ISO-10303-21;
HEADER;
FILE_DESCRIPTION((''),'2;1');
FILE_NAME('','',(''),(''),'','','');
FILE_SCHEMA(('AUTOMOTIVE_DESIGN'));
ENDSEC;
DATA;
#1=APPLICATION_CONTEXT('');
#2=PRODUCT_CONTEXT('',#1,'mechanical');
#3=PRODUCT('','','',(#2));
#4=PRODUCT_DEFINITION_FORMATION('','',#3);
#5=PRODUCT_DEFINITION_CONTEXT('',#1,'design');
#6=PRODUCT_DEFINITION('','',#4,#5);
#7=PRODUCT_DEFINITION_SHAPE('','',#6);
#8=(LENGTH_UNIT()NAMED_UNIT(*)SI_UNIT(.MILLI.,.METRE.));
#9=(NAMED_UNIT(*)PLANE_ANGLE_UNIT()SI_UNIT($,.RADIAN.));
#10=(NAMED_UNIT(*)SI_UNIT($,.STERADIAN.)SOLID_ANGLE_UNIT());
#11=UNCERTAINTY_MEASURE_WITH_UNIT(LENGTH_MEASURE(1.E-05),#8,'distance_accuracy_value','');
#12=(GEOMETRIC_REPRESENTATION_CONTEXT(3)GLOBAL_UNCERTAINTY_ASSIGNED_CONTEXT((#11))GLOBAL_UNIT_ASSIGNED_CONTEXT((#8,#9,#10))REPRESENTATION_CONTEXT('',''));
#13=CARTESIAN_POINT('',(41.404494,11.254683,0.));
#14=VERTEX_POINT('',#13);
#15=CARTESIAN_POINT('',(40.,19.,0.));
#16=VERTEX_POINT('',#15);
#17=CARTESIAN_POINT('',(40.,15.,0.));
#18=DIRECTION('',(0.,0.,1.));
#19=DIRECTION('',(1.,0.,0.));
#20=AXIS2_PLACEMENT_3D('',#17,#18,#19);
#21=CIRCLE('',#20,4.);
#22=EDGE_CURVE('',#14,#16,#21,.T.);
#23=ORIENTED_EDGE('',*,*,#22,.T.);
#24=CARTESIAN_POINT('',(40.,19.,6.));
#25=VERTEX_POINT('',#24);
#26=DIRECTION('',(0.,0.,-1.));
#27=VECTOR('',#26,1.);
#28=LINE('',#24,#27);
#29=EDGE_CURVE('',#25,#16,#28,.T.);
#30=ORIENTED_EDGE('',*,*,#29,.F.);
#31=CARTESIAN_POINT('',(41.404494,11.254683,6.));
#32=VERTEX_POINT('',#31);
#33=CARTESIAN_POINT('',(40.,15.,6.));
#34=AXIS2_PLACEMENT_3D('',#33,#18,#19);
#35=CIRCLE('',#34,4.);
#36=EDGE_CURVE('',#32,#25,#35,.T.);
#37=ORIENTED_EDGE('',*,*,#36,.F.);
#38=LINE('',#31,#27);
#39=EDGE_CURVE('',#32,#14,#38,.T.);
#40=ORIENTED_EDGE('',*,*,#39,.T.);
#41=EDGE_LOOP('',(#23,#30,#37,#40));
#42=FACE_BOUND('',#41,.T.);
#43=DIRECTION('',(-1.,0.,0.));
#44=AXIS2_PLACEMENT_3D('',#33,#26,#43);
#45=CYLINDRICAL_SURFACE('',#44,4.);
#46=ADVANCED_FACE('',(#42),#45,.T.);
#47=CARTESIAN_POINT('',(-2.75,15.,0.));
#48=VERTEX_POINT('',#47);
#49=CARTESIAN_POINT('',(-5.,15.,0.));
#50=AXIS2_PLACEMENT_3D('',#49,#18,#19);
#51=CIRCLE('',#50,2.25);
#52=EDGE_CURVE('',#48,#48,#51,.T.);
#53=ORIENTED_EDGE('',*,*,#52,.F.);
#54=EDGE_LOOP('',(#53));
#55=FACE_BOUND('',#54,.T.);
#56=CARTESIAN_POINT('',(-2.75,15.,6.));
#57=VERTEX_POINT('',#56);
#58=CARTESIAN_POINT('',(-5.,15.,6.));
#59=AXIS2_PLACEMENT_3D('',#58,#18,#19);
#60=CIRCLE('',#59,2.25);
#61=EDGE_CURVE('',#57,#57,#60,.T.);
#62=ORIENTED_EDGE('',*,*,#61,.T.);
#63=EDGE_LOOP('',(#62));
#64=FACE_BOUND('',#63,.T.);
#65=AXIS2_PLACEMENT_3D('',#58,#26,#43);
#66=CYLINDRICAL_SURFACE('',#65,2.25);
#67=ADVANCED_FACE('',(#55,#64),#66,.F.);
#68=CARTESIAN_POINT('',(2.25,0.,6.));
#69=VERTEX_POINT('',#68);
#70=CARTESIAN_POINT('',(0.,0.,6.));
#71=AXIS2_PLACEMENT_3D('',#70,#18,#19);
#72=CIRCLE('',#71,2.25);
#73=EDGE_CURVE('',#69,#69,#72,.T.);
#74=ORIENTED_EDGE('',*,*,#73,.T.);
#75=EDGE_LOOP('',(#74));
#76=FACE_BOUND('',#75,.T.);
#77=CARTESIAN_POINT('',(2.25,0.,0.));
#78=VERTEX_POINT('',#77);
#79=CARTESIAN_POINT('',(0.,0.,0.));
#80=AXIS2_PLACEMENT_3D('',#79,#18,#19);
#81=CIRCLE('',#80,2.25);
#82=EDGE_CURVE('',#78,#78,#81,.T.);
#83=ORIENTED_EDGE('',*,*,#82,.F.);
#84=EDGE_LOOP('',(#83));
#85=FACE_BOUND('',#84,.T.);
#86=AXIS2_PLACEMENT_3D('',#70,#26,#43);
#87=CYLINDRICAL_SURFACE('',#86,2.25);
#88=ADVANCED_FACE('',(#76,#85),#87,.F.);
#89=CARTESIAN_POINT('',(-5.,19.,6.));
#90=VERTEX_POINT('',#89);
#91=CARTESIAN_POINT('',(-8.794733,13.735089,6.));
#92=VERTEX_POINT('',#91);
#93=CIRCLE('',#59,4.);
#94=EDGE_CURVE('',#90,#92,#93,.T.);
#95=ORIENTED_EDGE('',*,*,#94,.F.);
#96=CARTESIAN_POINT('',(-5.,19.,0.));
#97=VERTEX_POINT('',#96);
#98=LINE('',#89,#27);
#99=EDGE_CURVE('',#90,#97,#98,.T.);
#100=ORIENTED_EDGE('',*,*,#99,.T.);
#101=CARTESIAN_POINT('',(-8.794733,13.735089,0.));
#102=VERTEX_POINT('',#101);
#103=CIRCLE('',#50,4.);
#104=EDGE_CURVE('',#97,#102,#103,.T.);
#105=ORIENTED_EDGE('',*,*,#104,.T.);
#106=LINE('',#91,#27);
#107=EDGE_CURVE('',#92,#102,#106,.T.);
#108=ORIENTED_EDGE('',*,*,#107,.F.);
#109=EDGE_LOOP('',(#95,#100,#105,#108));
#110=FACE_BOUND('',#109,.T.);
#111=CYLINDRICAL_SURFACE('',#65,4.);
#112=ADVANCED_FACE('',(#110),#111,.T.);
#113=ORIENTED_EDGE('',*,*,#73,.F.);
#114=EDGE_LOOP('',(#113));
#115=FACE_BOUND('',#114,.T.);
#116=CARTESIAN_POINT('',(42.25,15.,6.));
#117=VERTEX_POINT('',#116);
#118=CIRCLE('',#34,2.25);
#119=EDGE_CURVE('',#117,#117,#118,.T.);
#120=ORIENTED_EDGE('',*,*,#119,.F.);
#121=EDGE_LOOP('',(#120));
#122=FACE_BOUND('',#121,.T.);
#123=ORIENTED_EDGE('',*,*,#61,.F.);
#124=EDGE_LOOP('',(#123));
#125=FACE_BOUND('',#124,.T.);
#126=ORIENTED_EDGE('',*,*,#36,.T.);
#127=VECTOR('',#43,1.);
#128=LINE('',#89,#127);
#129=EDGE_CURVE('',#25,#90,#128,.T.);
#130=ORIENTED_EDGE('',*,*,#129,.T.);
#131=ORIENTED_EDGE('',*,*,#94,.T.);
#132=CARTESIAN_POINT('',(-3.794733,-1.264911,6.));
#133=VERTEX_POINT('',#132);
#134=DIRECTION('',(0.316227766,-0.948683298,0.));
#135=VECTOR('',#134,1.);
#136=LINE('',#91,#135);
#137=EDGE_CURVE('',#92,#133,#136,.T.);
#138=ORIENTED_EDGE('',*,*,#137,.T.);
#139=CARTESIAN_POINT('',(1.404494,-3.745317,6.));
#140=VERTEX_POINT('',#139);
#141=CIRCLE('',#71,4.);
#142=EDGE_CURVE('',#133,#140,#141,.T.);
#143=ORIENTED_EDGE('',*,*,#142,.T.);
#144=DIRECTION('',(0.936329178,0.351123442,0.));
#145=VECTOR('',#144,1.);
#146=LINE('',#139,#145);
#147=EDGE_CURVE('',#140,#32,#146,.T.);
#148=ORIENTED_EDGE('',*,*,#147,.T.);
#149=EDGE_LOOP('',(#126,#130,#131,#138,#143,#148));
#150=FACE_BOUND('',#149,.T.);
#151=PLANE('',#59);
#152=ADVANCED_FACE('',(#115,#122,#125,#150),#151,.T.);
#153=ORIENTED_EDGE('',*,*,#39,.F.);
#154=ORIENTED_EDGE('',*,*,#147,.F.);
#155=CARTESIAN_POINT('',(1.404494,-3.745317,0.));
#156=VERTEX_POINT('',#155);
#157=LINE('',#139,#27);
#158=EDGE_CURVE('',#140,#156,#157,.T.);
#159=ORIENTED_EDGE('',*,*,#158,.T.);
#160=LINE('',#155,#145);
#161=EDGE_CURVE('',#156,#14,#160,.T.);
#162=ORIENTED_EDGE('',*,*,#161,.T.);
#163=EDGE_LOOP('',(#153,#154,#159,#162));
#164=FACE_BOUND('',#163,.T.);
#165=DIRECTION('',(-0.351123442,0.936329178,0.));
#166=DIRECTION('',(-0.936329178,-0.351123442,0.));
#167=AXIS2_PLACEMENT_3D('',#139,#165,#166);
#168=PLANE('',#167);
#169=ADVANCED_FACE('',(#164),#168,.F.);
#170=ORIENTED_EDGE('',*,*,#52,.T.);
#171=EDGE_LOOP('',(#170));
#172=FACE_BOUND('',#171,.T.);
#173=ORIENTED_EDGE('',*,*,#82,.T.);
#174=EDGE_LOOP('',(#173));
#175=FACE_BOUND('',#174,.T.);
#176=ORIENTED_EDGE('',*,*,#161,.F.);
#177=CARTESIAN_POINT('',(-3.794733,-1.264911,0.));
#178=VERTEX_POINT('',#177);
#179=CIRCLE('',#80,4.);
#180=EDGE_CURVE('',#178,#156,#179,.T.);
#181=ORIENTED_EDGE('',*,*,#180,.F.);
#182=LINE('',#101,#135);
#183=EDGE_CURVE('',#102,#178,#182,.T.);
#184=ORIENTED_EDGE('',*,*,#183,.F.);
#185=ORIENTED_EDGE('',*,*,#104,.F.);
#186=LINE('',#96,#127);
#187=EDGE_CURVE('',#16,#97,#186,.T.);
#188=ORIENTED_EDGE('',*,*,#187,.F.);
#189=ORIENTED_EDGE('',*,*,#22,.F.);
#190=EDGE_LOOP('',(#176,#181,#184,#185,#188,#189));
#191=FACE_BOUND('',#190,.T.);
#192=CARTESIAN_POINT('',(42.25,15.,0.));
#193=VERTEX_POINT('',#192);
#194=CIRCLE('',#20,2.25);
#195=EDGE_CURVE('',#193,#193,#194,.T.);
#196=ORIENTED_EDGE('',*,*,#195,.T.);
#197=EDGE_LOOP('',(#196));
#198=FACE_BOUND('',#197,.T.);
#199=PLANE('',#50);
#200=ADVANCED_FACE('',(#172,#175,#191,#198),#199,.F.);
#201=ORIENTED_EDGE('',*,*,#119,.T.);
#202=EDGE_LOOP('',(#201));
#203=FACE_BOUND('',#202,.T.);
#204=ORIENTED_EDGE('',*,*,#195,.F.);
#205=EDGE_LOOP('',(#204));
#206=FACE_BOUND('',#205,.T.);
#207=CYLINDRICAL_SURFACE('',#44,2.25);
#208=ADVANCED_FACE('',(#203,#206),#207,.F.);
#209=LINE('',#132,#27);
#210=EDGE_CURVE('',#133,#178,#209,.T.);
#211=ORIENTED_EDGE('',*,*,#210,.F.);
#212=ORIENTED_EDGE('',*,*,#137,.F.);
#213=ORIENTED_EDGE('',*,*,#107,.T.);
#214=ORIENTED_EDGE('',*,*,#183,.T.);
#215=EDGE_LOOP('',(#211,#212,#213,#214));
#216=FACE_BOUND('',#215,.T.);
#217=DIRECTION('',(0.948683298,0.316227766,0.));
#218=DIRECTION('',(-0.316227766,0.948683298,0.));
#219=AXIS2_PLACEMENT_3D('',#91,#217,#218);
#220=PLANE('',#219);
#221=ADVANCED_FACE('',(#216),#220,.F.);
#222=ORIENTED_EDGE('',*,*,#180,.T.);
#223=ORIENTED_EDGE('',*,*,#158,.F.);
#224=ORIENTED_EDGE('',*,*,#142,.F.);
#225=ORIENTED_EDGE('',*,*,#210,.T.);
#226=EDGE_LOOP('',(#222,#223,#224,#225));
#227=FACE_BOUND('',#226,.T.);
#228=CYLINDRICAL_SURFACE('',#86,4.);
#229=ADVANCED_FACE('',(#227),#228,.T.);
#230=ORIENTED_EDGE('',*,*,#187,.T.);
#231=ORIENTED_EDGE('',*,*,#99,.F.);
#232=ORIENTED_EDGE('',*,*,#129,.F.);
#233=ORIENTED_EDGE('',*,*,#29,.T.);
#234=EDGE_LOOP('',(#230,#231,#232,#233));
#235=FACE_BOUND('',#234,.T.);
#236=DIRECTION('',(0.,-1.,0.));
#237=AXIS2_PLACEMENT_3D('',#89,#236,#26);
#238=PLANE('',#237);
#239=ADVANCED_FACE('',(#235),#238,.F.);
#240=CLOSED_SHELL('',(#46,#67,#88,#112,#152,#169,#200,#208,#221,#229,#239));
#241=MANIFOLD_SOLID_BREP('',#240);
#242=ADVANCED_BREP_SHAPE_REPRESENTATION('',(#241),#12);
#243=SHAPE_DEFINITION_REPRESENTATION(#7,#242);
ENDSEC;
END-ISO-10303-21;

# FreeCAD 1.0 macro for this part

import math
import FreeCAD as App
import Part
import Sketcher
from FreeCAD import Vector

doc = App.newDocument("Part")
params = doc.addObject("Spreadsheet::Sheet", "Params")
for row, (alias, value) in enumerate([
    ("sketch1_radius", "4 mm"),
    ("sketch1_diameter", "4.5 mm"),
    ("sketch1_width", "45 mm"),
    ("pad1_length", "6 mm"),
], start=1):
    params.set(f"A{row}", alias)
    params.set(f"B{row}", "=" + value)
    params.setAlias(f"B{row}", alias)

body = doc.addObject("PartDesign::Body", "Body")

# Sketch on XY plane
sketch1 = body.newObject("Sketcher::SketchObject", "Sketch")
sketch1.AttachmentSupport = (doc.getObject("XY_Plane"), [""])
sketch1.MapMode = "FlatFace"
sketch1.addGeometry([
    Part.LineSegment(Vector(40, 19, 0), Vector(-5, 19, 0)),  # 0
    Part.ArcOfCircle(Part.Circle(Vector(-5, 15, 0), Vector(0, 0, 1), 4), math.radians(90), math.radians(198)),  # 1
    Part.LineSegment(Vector(-8.8, 13.7, 0), Vector(-3.8, -1.3, 0)),  # 2
    Part.ArcOfCircle(Part.Circle(Vector(0, 0, 0), Vector(0, 0, 1), 4), math.radians(-162), math.radians(-69)),  # 3
    Part.LineSegment(Vector(1.4, -3.7, 0), Vector(41.4, 11.3, 0)),  # 4
    Part.ArcOfCircle(Part.Circle(Vector(40, 15, 0), Vector(0, 0, 1), 4), math.radians(-69), math.radians(90)),  # 5
    Part.Circle(Vector(0, 0, 0), Vector(0, 0, 1), 2.2),  # 6
    Part.Circle(Vector(40, 15, 0), Vector(0, 0, 1), 2.2),  # 7
    Part.Circle(Vector(-5, 15, 0), Vector(0, 0, 1), 2.2),  # 8
], False)
sketch1.addConstraint([
    Sketcher.Constraint("Tangent", 0, 2, 1, 1),
    Sketcher.Constraint("Tangent", 1, 2, 2, 1),
    Sketcher.Constraint("Tangent", 2, 2, 3, 1),
    Sketcher.Constraint("Tangent", 3, 2, 4, 1),
    Sketcher.Constraint("Tangent", 4, 2, 5, 1),
    Sketcher.Constraint("Tangent", 5, 2, 0, 1),
    Sketcher.Constraint("Horizontal", 0),
    Sketcher.Constraint("Coincident", 3, 3, -1, 1),
    Sketcher.Constraint("Coincident", 6, 3, -1, 1),
    Sketcher.Constraint("Coincident", 7, 3, 5, 3),
    Sketcher.Constraint("Coincident", 8, 3, 1, 3),
    Sketcher.Constraint("Equal", 1, 3),
    Sketcher.Constraint("Equal", 3, 5),
    Sketcher.Constraint("Equal", 6, 7),
    Sketcher.Constraint("Equal", 7, 8),
    Sketcher.Constraint("Radius", 1, 4.0),
    Sketcher.Constraint("Diameter", 6, 4.5),
    Sketcher.Constraint("DistanceX", 0, 2, 0, 1, 45.0),
    Sketcher.Constraint("DistanceX", 1, 3, -1, 1, 5.0),
    Sketcher.Constraint("DistanceY", -1, 1, 1, 3, 15.0),
])
sketch1.setExpression("Constraints[15]", "Params.sketch1_radius")
sketch1.setExpression("Constraints[16]", "Params.sketch1_diameter")
sketch1.setExpression("Constraints[17]", "Params.sketch1_width")
pad1 = body.newObject("PartDesign::Pad", "Pad")
pad1.Profile = sketch1
pad1.setExpression("Length", "Params.pad1_length")

doc.recompute()
